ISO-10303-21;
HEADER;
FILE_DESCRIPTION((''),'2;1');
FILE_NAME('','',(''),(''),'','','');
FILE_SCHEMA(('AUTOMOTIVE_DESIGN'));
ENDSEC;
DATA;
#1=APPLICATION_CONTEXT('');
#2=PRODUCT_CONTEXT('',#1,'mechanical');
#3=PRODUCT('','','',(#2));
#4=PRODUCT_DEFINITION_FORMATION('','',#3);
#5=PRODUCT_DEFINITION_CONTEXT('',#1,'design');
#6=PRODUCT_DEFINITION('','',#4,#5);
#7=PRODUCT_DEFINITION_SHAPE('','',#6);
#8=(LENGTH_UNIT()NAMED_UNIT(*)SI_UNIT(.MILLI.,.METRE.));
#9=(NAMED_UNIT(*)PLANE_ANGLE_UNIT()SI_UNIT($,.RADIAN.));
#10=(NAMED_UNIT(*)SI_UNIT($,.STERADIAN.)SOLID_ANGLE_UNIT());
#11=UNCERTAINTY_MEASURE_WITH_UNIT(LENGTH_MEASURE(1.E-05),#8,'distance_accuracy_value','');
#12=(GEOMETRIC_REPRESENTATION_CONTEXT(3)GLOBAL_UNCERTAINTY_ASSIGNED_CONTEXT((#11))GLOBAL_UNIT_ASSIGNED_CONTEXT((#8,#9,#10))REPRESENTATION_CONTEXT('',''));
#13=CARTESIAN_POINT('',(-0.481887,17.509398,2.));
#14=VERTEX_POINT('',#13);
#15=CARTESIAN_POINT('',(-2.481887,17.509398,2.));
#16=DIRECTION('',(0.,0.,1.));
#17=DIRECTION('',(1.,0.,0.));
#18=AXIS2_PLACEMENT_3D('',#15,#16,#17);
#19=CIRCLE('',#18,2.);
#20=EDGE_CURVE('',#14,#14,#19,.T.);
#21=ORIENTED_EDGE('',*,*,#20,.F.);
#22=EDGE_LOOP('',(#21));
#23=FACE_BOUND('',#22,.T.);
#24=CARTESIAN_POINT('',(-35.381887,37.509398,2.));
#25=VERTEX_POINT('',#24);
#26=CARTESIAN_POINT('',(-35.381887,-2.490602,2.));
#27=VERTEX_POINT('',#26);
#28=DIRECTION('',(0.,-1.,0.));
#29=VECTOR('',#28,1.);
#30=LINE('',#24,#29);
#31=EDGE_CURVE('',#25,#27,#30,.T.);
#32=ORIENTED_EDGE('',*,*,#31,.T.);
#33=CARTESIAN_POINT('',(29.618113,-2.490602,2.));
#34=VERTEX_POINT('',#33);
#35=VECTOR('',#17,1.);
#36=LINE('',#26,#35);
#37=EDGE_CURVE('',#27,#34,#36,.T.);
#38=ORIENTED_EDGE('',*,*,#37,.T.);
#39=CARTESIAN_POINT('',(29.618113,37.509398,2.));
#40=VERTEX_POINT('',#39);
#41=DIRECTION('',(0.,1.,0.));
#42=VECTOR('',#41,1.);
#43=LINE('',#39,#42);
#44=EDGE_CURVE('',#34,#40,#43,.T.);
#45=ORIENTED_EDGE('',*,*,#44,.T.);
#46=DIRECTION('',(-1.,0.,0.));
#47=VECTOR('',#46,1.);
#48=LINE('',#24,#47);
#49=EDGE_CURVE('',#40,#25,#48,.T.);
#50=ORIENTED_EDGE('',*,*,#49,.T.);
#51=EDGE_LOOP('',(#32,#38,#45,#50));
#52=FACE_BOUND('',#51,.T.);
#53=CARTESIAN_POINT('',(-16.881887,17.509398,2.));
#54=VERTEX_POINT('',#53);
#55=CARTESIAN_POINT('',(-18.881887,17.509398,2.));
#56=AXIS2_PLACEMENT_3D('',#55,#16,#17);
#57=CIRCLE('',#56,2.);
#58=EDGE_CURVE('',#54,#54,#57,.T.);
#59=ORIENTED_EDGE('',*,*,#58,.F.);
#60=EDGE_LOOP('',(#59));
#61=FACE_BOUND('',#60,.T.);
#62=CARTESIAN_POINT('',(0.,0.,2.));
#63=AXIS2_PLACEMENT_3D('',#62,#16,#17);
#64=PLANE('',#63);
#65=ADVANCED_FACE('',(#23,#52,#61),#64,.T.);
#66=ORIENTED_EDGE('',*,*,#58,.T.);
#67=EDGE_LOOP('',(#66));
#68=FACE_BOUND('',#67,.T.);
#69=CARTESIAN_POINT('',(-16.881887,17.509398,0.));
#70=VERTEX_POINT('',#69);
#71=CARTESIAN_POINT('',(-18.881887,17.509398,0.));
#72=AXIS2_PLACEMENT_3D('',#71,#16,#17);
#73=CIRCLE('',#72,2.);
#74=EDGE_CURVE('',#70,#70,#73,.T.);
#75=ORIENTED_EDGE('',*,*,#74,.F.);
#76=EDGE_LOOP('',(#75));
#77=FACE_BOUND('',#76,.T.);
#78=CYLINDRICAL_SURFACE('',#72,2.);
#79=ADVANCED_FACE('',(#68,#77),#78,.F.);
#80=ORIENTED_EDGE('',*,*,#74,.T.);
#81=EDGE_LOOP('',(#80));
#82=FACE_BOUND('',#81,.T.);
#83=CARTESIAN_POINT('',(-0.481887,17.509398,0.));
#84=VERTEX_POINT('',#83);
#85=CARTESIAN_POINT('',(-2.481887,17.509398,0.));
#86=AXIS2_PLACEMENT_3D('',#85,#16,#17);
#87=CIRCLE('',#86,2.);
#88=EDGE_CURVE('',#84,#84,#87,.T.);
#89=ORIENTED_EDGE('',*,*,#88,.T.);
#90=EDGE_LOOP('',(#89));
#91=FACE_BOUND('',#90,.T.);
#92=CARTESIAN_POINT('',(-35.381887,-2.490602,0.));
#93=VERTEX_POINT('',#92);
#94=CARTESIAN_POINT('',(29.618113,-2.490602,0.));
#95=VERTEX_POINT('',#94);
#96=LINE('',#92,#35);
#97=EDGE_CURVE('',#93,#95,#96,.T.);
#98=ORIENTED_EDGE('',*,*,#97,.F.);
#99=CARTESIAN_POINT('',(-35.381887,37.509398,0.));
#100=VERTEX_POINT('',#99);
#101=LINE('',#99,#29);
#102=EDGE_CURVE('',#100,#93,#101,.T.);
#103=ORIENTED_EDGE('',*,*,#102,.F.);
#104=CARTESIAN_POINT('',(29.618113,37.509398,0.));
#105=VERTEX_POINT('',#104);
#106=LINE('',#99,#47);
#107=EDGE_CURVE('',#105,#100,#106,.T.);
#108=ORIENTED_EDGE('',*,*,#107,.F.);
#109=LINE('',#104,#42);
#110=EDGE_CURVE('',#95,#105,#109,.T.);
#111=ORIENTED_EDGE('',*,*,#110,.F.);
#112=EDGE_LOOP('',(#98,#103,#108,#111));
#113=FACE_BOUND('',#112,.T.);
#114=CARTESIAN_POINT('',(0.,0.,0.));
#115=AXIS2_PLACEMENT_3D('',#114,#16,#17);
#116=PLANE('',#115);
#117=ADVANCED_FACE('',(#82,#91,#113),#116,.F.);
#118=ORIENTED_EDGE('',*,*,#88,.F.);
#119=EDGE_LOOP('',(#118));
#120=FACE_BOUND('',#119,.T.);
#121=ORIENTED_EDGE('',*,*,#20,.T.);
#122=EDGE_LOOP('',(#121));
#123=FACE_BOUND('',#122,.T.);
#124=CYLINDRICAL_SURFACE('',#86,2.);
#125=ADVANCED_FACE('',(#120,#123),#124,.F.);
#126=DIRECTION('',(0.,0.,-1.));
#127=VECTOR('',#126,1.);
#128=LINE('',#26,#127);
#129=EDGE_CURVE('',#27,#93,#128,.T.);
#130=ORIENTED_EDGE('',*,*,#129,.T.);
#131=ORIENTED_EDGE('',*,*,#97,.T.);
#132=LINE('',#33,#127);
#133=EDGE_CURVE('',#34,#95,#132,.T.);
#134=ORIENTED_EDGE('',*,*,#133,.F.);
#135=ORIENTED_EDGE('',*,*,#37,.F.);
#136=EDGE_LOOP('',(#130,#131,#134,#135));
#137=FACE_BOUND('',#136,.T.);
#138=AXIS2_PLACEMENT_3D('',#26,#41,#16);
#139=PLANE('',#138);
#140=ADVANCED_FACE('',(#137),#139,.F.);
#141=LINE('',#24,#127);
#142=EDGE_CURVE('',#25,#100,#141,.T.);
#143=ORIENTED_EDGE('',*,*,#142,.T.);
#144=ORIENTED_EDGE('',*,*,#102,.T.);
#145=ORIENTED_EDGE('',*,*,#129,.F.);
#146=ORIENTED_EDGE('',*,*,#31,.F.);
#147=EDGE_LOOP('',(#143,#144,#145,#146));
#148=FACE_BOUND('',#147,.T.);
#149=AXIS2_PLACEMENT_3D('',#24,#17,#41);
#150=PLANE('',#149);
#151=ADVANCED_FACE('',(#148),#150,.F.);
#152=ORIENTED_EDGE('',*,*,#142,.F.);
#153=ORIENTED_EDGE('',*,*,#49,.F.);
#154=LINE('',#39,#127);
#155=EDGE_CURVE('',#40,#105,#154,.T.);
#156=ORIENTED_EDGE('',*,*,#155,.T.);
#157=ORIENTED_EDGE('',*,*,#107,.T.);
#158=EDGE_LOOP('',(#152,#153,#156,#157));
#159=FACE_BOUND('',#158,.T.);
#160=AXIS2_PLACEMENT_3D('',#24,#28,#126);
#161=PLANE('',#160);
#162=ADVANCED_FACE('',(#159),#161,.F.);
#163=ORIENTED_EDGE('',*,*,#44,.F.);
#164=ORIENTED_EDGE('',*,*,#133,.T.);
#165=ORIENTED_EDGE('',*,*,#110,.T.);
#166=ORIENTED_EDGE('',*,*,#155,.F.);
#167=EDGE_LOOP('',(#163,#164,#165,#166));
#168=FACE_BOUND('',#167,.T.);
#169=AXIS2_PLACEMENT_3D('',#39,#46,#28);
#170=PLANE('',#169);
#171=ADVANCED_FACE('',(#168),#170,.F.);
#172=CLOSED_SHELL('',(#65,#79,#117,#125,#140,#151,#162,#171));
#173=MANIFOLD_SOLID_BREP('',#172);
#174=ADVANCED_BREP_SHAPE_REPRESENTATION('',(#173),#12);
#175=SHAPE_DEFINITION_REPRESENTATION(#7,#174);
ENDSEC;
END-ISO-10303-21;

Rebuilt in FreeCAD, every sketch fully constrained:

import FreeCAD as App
import Part
import Sketcher

V = App.Vector

doc = App.newDocument("Part")
body = doc.addObject("PartDesign::Body", "Body")

sketch1 = body.newObject("Sketcher::SketchObject", "Sketch")
sketch1.AttachmentSupport = (doc.getObject("XY_Plane"), [""])
sketch1.MapMode = "FlatFace"
sketch1.addGeometry(Part.LineSegment(V(-35, 38, 0), V(-35, -2, 0)), False)
sketch1.addGeometry(Part.LineSegment(V(-35, -2, 0), V(30, -2, 0)), False)
sketch1.addGeometry(Part.LineSegment(V(30, -2, 0), V(30, 38, 0)), False)
sketch1.addGeometry(Part.LineSegment(V(30, 38, 0), V(-35, 38, 0)), False)
sketch1.addConstraint(Sketcher.Constraint("Coincident", 0, 2, 1, 1))
sketch1.addConstraint(Sketcher.Constraint("Coincident", 1, 2, 2, 1))
sketch1.addConstraint(Sketcher.Constraint("Coincident", 2, 2, 3, 1))
sketch1.addConstraint(Sketcher.Constraint("Coincident", 3, 2, 0, 1))
sketch1.addConstraint(Sketcher.Constraint("Vertical", 0))
sketch1.addConstraint(Sketcher.Constraint("Horizontal", 1))
sketch1.addConstraint(Sketcher.Constraint("Vertical", 2))
sketch1.addConstraint(Sketcher.Constraint("Horizontal", 3))
sketch1.addConstraint(Sketcher.Constraint("DistanceX", 1, 1, 1, 2, 65.0))
sketch1.addConstraint(Sketcher.Constraint("DistanceY", 0, 2, 0, 1, 40.0))
sketch1.addConstraint(Sketcher.Constraint("DistanceY", 0, 2, -1, 1, 2.490602))
sketch1.addConstraint(Sketcher.Constraint("DistanceX", 0, 2, -1, 1, 35.381887))
pad1 = body.newObject("PartDesign::Pad", "Pad")
pad1.Profile = sketch1
pad1.Length = 2

sketch2 = body.newObject("Sketcher::SketchObject", "Sketch001")
sketch2.AttachmentSupport = (doc.getObject("XY_Plane"), [""])
sketch2.MapMode = "FlatFace"
sketch2.AttachmentOffset = App.Placement(V(0, 0, 2), App.Rotation())
sketch2.addGeometry(Part.Circle(V(-18.9, 17.5, 0), V(0, 0, 1), 2), False)
sketch2.addGeometry(Part.Circle(V(-2.5, 17.5, 0), V(0, 0, 1), 2), False)
sketch2.addConstraint(Sketcher.Constraint("Equal", 0, 1))
sketch2.addConstraint(Sketcher.Constraint("Horizontal", 0, 3, 1, 3))
sketch2.addConstraint(Sketcher.Constraint("Diameter", 0, 4.0))
sketch2.addConstraint(Sketcher.Constraint("DistanceX", 0, 3, 1, 3, 16.4))
sketch2.addConstraint(Sketcher.Constraint("DistanceY", -1, 1, 0, 3, 17.509398))
sketch2.addConstraint(Sketcher.Constraint("DistanceX", 0, 3, -1, 1, 18.881887))
pocket1 = body.newObject("PartDesign::Pocket", "Pocket")
pocket1.Profile = sketch2
pocket1.Type = "ThroughAll"

doc.recompute()
